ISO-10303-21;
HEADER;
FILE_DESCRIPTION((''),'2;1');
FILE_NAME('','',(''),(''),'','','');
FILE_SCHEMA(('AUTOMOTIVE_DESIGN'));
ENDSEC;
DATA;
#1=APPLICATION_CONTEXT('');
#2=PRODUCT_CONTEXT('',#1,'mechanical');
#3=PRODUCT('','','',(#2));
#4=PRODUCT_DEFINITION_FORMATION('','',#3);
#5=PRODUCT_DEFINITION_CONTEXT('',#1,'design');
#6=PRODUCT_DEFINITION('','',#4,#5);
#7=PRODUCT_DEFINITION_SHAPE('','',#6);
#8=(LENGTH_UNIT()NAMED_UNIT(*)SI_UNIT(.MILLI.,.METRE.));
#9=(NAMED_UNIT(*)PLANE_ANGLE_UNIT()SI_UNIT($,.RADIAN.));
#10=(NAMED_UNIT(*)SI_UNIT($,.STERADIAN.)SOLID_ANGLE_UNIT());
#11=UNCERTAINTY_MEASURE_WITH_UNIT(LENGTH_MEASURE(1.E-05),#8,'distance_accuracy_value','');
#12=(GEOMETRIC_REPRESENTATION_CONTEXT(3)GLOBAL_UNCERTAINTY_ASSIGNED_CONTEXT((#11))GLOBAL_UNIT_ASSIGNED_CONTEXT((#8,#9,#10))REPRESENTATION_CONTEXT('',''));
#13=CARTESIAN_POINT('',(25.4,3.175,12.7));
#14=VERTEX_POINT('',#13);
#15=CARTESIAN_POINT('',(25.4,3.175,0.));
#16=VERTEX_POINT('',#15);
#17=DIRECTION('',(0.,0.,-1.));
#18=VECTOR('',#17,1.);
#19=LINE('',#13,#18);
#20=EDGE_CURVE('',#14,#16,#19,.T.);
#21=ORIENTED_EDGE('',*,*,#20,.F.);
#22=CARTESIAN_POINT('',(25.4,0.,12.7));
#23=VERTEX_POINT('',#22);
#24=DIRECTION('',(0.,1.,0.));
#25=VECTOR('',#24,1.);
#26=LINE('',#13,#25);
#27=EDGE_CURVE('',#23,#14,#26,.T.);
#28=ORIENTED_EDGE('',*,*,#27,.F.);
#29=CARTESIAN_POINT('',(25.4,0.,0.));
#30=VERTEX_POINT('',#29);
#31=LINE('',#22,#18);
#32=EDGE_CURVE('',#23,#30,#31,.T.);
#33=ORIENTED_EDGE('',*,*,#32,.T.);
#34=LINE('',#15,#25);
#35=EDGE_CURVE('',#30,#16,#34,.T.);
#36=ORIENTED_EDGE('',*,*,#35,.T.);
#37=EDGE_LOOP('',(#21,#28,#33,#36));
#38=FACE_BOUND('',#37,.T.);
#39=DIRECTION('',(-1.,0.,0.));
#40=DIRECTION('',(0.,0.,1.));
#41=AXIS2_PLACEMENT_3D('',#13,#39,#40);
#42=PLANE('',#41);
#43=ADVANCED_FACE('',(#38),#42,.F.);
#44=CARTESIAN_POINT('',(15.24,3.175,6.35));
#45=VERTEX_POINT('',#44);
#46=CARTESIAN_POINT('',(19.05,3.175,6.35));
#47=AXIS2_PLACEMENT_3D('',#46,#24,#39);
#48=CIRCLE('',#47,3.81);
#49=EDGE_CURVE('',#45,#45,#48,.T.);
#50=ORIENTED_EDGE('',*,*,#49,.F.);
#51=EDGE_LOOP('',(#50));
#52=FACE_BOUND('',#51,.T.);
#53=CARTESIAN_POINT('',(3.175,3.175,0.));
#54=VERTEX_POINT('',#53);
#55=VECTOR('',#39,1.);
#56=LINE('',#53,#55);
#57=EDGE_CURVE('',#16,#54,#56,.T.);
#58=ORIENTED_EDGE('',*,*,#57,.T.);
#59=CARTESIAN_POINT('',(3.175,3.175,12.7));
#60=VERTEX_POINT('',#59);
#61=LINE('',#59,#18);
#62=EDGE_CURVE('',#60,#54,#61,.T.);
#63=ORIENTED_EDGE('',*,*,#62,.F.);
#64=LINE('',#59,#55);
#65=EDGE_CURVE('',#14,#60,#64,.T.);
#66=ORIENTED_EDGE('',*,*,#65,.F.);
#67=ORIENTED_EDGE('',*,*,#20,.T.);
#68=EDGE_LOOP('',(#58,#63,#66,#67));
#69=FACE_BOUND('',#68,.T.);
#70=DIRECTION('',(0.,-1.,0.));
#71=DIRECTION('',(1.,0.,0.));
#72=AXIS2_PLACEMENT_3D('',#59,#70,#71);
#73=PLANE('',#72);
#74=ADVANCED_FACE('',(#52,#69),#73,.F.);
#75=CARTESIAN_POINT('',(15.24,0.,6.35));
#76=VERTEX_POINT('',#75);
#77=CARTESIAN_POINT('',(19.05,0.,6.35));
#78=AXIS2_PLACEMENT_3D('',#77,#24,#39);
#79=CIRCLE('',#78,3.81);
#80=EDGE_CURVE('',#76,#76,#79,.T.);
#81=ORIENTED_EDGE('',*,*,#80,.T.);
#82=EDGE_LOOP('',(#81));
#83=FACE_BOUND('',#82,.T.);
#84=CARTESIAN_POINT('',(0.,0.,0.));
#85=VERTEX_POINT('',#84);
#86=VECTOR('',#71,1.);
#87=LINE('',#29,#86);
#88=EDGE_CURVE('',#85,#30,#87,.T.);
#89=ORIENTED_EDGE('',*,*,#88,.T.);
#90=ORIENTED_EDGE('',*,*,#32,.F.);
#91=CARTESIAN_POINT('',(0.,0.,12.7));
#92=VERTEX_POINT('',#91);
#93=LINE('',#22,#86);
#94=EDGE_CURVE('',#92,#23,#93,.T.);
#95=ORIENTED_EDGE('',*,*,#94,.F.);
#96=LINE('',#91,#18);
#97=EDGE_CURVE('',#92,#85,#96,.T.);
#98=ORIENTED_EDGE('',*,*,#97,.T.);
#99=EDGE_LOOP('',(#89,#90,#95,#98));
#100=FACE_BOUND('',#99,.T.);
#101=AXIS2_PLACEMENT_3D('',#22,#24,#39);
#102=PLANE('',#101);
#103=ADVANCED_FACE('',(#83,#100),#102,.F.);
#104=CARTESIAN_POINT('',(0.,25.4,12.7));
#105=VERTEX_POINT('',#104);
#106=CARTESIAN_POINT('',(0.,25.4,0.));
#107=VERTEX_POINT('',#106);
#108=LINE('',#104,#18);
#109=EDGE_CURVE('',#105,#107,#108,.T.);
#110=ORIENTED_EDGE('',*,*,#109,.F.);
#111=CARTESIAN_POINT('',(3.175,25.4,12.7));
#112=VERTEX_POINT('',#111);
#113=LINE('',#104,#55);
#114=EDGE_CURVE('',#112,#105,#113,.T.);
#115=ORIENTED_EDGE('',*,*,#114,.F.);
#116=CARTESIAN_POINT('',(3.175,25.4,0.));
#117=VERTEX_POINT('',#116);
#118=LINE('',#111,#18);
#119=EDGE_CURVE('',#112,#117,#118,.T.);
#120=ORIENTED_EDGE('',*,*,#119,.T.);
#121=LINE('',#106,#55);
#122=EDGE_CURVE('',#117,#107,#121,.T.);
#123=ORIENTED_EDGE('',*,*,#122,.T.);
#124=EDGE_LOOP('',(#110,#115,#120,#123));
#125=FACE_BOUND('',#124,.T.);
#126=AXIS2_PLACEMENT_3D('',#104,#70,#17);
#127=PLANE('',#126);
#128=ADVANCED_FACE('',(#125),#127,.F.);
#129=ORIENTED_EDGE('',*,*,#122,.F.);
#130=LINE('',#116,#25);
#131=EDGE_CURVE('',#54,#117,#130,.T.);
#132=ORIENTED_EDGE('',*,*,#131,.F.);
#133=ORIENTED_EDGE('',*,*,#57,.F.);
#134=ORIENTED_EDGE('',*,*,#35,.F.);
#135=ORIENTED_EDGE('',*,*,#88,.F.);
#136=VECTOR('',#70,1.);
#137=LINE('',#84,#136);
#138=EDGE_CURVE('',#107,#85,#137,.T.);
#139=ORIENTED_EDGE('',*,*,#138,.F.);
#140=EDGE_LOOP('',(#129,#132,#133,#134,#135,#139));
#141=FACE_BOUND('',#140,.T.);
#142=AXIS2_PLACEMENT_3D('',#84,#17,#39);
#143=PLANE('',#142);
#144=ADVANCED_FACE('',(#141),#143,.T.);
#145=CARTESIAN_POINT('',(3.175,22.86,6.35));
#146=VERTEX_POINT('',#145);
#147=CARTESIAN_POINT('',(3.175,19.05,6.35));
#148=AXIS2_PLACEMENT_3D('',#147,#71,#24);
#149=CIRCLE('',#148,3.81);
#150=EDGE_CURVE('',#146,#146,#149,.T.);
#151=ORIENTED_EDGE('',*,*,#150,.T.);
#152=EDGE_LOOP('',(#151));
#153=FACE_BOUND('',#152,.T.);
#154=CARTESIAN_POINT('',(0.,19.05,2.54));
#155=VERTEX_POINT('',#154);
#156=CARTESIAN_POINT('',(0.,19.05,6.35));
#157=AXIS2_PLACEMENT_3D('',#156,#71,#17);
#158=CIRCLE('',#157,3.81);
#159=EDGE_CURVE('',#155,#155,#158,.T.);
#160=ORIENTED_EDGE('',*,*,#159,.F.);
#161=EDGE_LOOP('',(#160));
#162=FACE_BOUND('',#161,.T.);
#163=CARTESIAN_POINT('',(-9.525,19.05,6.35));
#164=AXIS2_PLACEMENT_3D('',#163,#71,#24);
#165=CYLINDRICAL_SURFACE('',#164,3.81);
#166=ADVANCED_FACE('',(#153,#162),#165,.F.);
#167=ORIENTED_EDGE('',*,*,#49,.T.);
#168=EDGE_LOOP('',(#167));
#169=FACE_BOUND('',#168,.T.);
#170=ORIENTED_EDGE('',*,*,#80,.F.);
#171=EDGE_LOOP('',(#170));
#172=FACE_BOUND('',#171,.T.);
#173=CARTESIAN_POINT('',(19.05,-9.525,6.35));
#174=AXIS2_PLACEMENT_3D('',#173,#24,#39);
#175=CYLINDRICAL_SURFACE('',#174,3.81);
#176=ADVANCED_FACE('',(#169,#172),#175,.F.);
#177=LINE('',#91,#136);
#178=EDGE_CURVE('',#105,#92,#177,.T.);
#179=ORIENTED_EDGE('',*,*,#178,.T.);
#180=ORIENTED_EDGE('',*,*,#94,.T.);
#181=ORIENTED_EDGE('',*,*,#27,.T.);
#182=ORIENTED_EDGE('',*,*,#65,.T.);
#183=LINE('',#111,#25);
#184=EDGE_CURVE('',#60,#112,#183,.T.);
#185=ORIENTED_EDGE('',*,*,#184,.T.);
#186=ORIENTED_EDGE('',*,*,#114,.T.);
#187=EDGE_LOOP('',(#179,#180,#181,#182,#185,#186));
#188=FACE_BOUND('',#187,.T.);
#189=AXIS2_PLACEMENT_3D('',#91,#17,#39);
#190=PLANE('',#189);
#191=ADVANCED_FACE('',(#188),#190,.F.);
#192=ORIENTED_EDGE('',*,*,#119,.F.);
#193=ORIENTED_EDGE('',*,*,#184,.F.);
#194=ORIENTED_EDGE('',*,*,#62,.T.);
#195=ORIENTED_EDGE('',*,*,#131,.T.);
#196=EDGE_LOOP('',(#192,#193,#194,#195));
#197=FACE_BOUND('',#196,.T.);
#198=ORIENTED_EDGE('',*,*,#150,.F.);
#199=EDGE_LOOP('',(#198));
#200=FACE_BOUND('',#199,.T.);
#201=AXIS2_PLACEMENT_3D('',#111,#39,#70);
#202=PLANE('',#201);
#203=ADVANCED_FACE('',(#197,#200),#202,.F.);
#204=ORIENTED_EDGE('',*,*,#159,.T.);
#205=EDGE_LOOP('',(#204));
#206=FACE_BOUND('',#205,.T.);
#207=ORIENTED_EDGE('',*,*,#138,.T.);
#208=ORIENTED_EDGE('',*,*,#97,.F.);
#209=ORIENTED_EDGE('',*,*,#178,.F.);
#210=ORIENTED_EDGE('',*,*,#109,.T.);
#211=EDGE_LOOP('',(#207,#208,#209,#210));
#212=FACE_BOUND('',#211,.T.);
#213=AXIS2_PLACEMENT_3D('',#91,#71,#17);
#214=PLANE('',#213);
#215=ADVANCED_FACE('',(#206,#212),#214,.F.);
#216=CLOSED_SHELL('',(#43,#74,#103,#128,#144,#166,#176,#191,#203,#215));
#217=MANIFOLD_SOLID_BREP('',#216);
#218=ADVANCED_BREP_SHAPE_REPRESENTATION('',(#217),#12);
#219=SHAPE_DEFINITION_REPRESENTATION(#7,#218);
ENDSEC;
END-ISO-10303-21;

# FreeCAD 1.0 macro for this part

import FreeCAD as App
import Part
import Sketcher
Q = App.Units.Quantity


def add_polygon(sketch, points):
    """Adds a closed chain of lines whose ends are joined by coincident constraints."""
    first, n = sketch.GeometryCount, len(points)
    for a, b in zip(points, points[1:] + points[:1]):
        sketch.addGeometry(Part.LineSegment(App.Vector(*a, 0), App.Vector(*b, 0)), False)
    for i in range(n):
        sketch.addConstraint(Sketcher.Constraint("Coincident", first + i, 2, first + (i + 1) % n, 1))

doc = App.newDocument("Part")
body = doc.addObject("PartDesign::Body", "Body")

# Sketch on XY plane
sketch1 = doc.addObject("Sketcher::SketchObject", "Sketch")
body.addObject(sketch1)
sketch1.AttachmentSupport = (doc.XY_Plane, [""])
sketch1.MapMode = "FlatFace"
add_polygon(sketch1, [(0, 25.4), (0, 0), (25.4, 0), (25.4, 3.175), (3.175, 3.175), (3.175, 25.4)])  # lines 0-5
sketch1.addConstraint(Sketcher.Constraint("Vertical", 0))
sketch1.addConstraint(Sketcher.Constraint("Horizontal", 1))
sketch1.addConstraint(Sketcher.Constraint("Vertical", 2))
sketch1.addConstraint(Sketcher.Constraint("Horizontal", 3))
sketch1.addConstraint(Sketcher.Constraint("Vertical", 4))
sketch1.addConstraint(Sketcher.Constraint("Horizontal", 5))
sketch1.addConstraint(Sketcher.Constraint("Coincident", 0, 2, -1, 1))
sketch1.addConstraint(Sketcher.Constraint("Equal", 1, 0))
sketch1.addConstraint(Sketcher.Constraint("Equal", 5, 2))
sketch1.addConstraint(Sketcher.Constraint("DistanceX", 1, 1, 1, 2, Q("1 in")))
sketch1.addConstraint(Sketcher.Constraint("DistanceX", 3, 2, 3, 1, Q("0.875 in")))
pad1 = doc.addObject("PartDesign::Pad", "Pad")
body.addObject(pad1)
pad1.Profile = sketch1
pad1.Length = Q("0.5 in")

# Sketch on XZ plane
sketch2 = doc.addObject("Sketcher::SketchObject", "Sketch001")
body.addObject(sketch2)
sketch2.AttachmentSupport = (doc.XZ_Plane, [""])
sketch2.MapMode = "FlatFace"
sketch2.AttachmentOffset = App.Placement(App.Vector(0, 0, -0.125 * 25.4), App.Rotation())
sketch2.addGeometry(Part.Circle(App.Vector(19.05, 6.35, 0), App.Vector(0, 0, 1), 3.81), False)
sketch2.addConstraint(Sketcher.Constraint("Diameter", 0, Q("0.3 in")))
sketch2.addConstraint(Sketcher.Constraint("DistanceX", -1, 1, 0, 3, Q("0.75 in")))
sketch2.addConstraint(Sketcher.Constraint("DistanceY", -1, 1, 0, 3, Q("0.25 in")))
pocket1 = doc.addObject("PartDesign::Pocket", "Pocket")
body.addObject(pocket1)
pocket1.Profile = sketch2
pocket1.Length = Q("0.5 in")
pocket1.Reversed = True

# Sketch on YZ plane
sketch3 = doc.addObject("Sketcher::SketchObject", "Sketch002")
body.addObject(sketch3)
sketch3.AttachmentSupport = (doc.YZ_Plane, [""])
sketch3.MapMode = "FlatFace"
sketch3.AttachmentOffset = App.Placement(App.Vector(0, 0, 0.125 * 25.4), App.Rotation())
sketch3.addGeometry(Part.Circle(App.Vector(19.05, 6.35, 0), App.Vector(0, 0, 1), 3.81), False)
sketch3.addConstraint(Sketcher.Constraint("Diameter", 0, Q("0.3 in")))
sketch3.addConstraint(Sketcher.Constraint("DistanceX", -1, 1, 0, 3, Q("0.75 in")))
sketch3.addConstraint(Sketcher.Constraint("DistanceY", -1, 1, 0, 3, Q("0.25 in")))
pocket2 = doc.addObject("PartDesign::Pocket", "Pocket001")
body.addObject(pocket2)
pocket2.Profile = sketch3
pocket2.Length = Q("0.5 in")

doc.recompute()
